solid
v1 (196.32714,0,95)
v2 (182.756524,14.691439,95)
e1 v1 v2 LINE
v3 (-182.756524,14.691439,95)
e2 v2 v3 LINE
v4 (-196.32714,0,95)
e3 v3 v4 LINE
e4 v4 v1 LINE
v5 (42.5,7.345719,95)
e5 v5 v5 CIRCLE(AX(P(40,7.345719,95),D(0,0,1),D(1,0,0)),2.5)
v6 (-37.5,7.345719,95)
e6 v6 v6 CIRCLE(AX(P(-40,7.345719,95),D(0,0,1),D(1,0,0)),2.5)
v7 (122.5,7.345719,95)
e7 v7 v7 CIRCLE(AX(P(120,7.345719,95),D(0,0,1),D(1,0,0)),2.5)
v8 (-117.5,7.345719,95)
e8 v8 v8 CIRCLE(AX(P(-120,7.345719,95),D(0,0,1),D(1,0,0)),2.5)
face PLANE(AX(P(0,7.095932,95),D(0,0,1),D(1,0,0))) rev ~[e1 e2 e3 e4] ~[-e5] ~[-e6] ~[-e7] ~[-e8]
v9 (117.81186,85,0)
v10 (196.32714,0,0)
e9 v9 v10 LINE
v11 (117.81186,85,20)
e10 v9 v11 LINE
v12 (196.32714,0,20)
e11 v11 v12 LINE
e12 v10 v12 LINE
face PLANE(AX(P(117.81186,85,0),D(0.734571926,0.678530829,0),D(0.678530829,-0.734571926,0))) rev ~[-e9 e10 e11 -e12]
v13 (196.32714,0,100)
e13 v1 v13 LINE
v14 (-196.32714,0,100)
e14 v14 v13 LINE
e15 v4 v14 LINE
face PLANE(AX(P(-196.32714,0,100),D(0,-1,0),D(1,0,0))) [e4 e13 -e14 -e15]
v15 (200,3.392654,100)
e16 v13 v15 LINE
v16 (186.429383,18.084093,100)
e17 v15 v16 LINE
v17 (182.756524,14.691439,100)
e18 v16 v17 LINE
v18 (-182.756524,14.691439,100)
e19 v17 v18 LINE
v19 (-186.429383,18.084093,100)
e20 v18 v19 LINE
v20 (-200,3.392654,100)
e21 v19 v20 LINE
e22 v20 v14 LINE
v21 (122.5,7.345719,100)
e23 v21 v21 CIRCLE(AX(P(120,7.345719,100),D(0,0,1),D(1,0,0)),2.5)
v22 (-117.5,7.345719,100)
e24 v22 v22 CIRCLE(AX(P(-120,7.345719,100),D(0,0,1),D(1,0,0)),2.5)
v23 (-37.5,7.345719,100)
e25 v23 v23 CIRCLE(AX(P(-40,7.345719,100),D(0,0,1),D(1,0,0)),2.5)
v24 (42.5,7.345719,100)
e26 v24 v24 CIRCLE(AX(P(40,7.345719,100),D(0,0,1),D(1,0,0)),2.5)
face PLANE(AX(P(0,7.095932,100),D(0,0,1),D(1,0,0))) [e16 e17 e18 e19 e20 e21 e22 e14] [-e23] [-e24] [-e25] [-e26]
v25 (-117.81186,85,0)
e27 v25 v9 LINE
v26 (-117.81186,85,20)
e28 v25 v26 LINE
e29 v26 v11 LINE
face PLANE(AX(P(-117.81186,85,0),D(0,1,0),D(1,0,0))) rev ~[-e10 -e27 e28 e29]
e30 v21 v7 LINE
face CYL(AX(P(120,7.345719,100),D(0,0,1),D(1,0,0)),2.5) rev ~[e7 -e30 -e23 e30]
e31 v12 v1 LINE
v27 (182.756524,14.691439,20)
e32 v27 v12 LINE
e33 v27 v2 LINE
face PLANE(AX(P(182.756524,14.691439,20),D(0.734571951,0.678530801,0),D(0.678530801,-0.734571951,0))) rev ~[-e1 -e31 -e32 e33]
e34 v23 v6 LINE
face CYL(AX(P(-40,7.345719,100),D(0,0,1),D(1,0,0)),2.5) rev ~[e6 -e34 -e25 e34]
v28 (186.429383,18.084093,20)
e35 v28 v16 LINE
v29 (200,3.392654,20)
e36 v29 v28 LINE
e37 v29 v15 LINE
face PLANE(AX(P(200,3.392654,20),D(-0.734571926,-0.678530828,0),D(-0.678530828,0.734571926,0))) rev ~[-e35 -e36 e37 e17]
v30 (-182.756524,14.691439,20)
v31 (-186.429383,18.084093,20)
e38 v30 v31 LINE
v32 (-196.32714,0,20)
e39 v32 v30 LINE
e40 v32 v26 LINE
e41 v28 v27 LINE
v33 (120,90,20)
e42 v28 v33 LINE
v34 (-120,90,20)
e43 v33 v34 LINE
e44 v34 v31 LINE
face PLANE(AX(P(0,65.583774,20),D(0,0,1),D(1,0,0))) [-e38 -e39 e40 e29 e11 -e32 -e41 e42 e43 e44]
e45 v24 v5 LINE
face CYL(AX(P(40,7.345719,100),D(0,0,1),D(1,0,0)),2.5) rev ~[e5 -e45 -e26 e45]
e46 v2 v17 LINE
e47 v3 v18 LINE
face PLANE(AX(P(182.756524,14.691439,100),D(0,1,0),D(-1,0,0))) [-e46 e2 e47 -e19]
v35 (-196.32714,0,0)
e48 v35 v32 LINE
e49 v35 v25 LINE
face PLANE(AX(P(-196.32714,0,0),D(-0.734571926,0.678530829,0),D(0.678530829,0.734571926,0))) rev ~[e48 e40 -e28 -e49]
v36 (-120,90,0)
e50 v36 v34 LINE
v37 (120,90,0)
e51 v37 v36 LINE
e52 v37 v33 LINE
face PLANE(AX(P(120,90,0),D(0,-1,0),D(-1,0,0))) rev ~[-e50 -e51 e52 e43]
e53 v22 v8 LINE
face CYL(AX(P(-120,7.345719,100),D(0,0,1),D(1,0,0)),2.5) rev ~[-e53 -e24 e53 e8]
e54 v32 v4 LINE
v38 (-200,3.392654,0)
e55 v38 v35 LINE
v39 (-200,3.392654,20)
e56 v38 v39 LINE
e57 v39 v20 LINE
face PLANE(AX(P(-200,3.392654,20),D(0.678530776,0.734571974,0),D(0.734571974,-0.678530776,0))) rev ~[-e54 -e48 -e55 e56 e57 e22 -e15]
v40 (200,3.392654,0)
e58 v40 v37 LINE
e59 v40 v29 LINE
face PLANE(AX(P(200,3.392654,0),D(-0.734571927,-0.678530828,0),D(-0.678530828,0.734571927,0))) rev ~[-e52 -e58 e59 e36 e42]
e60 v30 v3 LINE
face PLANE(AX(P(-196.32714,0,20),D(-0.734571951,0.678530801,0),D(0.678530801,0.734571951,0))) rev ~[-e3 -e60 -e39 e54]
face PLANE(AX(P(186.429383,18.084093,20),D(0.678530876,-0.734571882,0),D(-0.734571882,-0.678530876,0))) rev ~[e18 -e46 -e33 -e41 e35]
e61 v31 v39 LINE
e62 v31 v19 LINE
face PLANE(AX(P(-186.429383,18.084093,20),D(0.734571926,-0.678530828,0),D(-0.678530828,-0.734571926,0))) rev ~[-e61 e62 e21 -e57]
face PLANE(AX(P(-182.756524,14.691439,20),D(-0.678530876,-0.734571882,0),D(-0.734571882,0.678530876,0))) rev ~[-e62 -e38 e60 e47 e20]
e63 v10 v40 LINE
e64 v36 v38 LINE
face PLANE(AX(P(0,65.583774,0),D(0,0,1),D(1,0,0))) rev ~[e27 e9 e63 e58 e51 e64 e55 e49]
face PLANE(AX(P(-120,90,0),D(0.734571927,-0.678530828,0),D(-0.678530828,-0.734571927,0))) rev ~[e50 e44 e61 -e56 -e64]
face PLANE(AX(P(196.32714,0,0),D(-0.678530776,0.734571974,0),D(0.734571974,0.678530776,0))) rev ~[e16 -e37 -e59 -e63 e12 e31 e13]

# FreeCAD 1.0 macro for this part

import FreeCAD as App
import Part
import Sketcher

doc = App.newDocument("Part")
params = doc.addObject("Spreadsheet::Sheet", "Params")
for row, (alias, value) in enumerate([
    ("sketch1_width", "240 mm"),
    ("sketch1_length", "5 mm"),
    ("pad1_length", "20 mm"),
    ("sketch2_length", "20.000001 mm"),
    ("sketch2_length2", "5 mm"),
    ("pad2_length", "80 mm"),
    ("sketch3_diameter", "5 mm"),
    ("sketch3_length", "20 mm"),
    ("pad3_length", "5 mm"),
], start=1):
    params.set(f"A{row}", alias)
    params.set(f"B{row}", "=" + value)
    params.setAlias(f"B{row}", alias)

body = doc.addObject("PartDesign::Body", "Body")

sketch1 = body.newObject("Sketcher::SketchObject", "Sketch")
sketch1.AttachmentSupport = (doc.getObject("XY_Plane"), [""])
sketch1.MapMode = "FlatFace"
sketch1.addGeometry([
    Part.LineSegment(App.Vector(-120, 90, 0), App.Vector(-200, 3, 0)),
    Part.LineSegment(App.Vector(-200, 3, 0), App.Vector(-196, 0, 0)),
    Part.LineSegment(App.Vector(-196, 0, 0), App.Vector(-118, 85, 0)),
    Part.LineSegment(App.Vector(-118, 85, 0), App.Vector(118, 85, 0)),
    Part.LineSegment(App.Vector(118, 85, 0), App.Vector(196, 0, 0)),
    Part.LineSegment(App.Vector(196, 0, 0), App.Vector(200, 3, 0)),
    Part.LineSegment(App.Vector(200, 3, 0), App.Vector(120, 90, 0)),
    Part.LineSegment(App.Vector(120, 90, 0), App.Vector(-120, 90, 0)),
], False)
sketch1.addConstraint([
    Sketcher.Constraint("Coincident", 0, 2, 1, 1),
    Sketcher.Constraint("Coincident", 1, 2, 2, 1),
    Sketcher.Constraint("Coincident", 2, 2, 3, 1),
    Sketcher.Constraint("Coincident", 3, 2, 4, 1),
    Sketcher.Constraint("Coincident", 4, 2, 5, 1),
    Sketcher.Constraint("Coincident", 5, 2, 6, 1),
    Sketcher.Constraint("Coincident", 6, 2, 7, 1),
    Sketcher.Constraint("Coincident", 7, 2, 0, 1),
    Sketcher.Constraint("Horizontal", 3),
    Sketcher.Constraint("Horizontal", 7),
    Sketcher.Constraint("Symmetric", 1, 2, 4, 2, -1, 1),
    Sketcher.Constraint("Symmetric", 0, 2, 5, 2, -2),
    Sketcher.Constraint("PointOnObject", 1, 2, -1),
    Sketcher.Constraint("Perpendicular", 0, 1),
    Sketcher.Constraint("Perpendicular", 1, 2),
    Sketcher.Constraint("Perpendicular", 4, 5),
    Sketcher.Constraint("Perpendicular", 5, 6),
    Sketcher.Constraint("DistanceX", 7, 2, 7, 1, 240.0),
    Sketcher.Constraint("Distance", 1, 5.0),
    Sketcher.Constraint("DistanceX", 0, 2, -1, 1, 200.0),
    Sketcher.Constraint("DistanceY", -1, 1, 2, 2, 85.0),
    Sketcher.Constraint("DistanceY", -1, 1, 6, 2, 90.0),
])
sketch1.setExpression("Constraints[17]", "Params.sketch1_width")
sketch1.setExpression("Constraints[18]", "Params.sketch1_length")
pad1 = body.newObject("PartDesign::Pad", "Pad")
pad1.Profile = sketch1
pad1.setExpression("Length", "Params.pad1_length")

sketch2 = body.newObject("Sketcher::SketchObject", "Sketch001")
sketch2.AttachmentSupport = (doc.getObject("XY_Plane"), [""])
sketch2.MapMode = "FlatFace"
sketch2.AttachmentOffset = App.Placement(App.Vector(0, 0, 20), App.Rotation())
sketch2.addGeometry([
    Part.LineSegment(App.Vector(-186.4, 18.1, 0), App.Vector(-200, 3.4, 0)),
    Part.LineSegment(App.Vector(-200, 3.4, 0), App.Vector(-196.3, 0, 0)),
    Part.LineSegment(App.Vector(-196.3, 0, 0), App.Vector(-182.8, 14.7, 0)),
    Part.LineSegment(App.Vector(-182.8, 14.7, 0), App.Vector(-186.4, 18.1, 0)),
    Part.LineSegment(App.Vector(200, 3.4, 0), App.Vector(186.4, 18.1, 0)),
    Part.LineSegment(App.Vector(186.4, 18.1, 0), App.Vector(182.8, 14.7, 0)),
    Part.LineSegment(App.Vector(182.8, 14.7, 0), App.Vector(196.3, 0, 0)),
    Part.LineSegment(App.Vector(196.3, 0, 0), App.Vector(200, 3.4, 0)),
], False)
sketch2.addConstraint([
    Sketcher.Constraint("Coincident", 0, 2, 1, 1),
    Sketcher.Constraint("Coincident", 1, 2, 2, 1),
    Sketcher.Constraint("Coincident", 2, 2, 3, 1),
    Sketcher.Constraint("Coincident", 3, 2, 0, 1),
    Sketcher.Constraint("Coincident", 4, 2, 5, 1),
    Sketcher.Constraint("Coincident", 5, 2, 6, 1),
    Sketcher.Constraint("Coincident", 6, 2, 7, 1),
    Sketcher.Constraint("Coincident", 7, 2, 4, 1),
    Sketcher.Constraint("Symmetric", 1, 2, 6, 2, -1, 1),
    Sketcher.Constraint("Symmetric", 3, 2, 4, 2, -2),
    Sketcher.Constraint("Symmetric", 2, 2, 5, 2, -2),
    Sketcher.Constraint("Symmetric", 0, 2, 7, 2, -2),
    Sketcher.Constraint("PointOnObject", 1, 2, -1),
    Sketcher.Constraint("Perpendicular", 0, 1),
    Sketcher.Constraint("Perpendicular", 1, 2),
    Sketcher.Constraint("Perpendicular", 2, 3),
    Sketcher.Constraint("Distance", 0, 20.000001),
    Sketcher.Constraint("Distance", 1, 5.0),
    Sketcher.Constraint("DistanceX", 0, 2, -1, 1, 200.0),
    Sketcher.Constraint("DistanceX", 1, 2, -1, 1, 196.32714),
])
sketch2.setExpression("Constraints[16]", "Params.sketch2_length")
sketch2.setExpression("Constraints[17]", "Params.sketch2_length2")
pad2 = body.newObject("PartDesign::Pad", "Pad001")
pad2.Profile = sketch2
pad2.setExpression("Length", "Params.pad2_length")

sketch3 = body.newObject("Sketcher::SketchObject", "Sketch002")
sketch3.AttachmentSupport = (doc.getObject("XY_Plane"), [""])
sketch3.MapMode = "FlatFace"
sketch3.AttachmentOffset = App.Placement(App.Vector(0, 0, 100), App.Rotation())
sketch3.addGeometry([
    Part.LineSegment(App.Vector(196.3, 0, 0), App.Vector(182.8, 14.7, 0)),
    Part.LineSegment(App.Vector(182.8, 14.7, 0), App.Vector(-182.8, 14.7, 0)),
    Part.LineSegment(App.Vector(-182.8, 14.7, 0), App.Vector(-196.3, 0, 0)),
    Part.LineSegment(App.Vector(-196.3, 0, 0), App.Vector(196.3, 0, 0)),
    Part.Circle(App.Vector(-120, 7.3, 0), App.Vector(0, 0, 1), 2.5),
    Part.Circle(App.Vector(-40, 7.3, 0), App.Vector(0, 0, 1), 2.5),
    Part.Circle(App.Vector(40, 7.3, 0), App.Vector(0, 0, 1), 2.5),
    Part.Circle(App.Vector(120, 7.3, 0), App.Vector(0, 0, 1), 2.5),
], False)
sketch3.addConstraint([
    Sketcher.Constraint("Coincident", 0, 2, 1, 1),
    Sketcher.Constraint("Coincident", 1, 2, 2, 1),
    Sketcher.Constraint("Coincident", 2, 2, 3, 1),
    Sketcher.Constraint("Coincident", 3, 2, 0, 1),
    Sketcher.Constraint("Horizontal", 1),
    Sketcher.Constraint("Horizontal", 3),
    Sketcher.Constraint("Equal", 4, 5),
    Sketcher.Constraint("Equal", 5, 6),
    Sketcher.Constraint("Equal", 6, 7),
    Sketcher.Constraint("Symmetric", 2, 2, 3, 2, -1, 1),
    Sketcher.Constraint("Symmetric", 5, 3, 6, 3, -2),
    Sketcher.Constraint("Symmetric", 4, 3, 7, 3, -2),
    Sketcher.Constraint("Horizontal", 4, 3, 5, 3),
    Sketcher.Constraint("Equal", 0, 2),
    Sketcher.Constraint("Diameter", 4, 5.0),
    Sketcher.Constraint("Distance", 0, 20.0),
    Sketcher.Constraint("DistanceX", 4, 3, -1, 1, 120.0),
    Sketcher.Constraint("DistanceX", 5, 3, -1, 1, 40.0),
    Sketcher.Constraint("DistanceX", 1, 2, 1, 1, 365.513048),
    Sketcher.Constraint("DistanceX", 3, 1, 3, 2, 392.65428),
    Sketcher.Constraint("DistanceY", -1, 1, 4, 3, 7.345719),
])
sketch3.setExpression("Constraints[14]", "Params.sketch3_diameter")
sketch3.setExpression("Constraints[15]", "Params.sketch3_length")
pad3 = body.newObject("PartDesign::Pad", "Pad002")
pad3.Profile = sketch3
pad3.setExpression("Length", "Params.pad3_length")
pad3.Reversed = True

doc.recompute()
